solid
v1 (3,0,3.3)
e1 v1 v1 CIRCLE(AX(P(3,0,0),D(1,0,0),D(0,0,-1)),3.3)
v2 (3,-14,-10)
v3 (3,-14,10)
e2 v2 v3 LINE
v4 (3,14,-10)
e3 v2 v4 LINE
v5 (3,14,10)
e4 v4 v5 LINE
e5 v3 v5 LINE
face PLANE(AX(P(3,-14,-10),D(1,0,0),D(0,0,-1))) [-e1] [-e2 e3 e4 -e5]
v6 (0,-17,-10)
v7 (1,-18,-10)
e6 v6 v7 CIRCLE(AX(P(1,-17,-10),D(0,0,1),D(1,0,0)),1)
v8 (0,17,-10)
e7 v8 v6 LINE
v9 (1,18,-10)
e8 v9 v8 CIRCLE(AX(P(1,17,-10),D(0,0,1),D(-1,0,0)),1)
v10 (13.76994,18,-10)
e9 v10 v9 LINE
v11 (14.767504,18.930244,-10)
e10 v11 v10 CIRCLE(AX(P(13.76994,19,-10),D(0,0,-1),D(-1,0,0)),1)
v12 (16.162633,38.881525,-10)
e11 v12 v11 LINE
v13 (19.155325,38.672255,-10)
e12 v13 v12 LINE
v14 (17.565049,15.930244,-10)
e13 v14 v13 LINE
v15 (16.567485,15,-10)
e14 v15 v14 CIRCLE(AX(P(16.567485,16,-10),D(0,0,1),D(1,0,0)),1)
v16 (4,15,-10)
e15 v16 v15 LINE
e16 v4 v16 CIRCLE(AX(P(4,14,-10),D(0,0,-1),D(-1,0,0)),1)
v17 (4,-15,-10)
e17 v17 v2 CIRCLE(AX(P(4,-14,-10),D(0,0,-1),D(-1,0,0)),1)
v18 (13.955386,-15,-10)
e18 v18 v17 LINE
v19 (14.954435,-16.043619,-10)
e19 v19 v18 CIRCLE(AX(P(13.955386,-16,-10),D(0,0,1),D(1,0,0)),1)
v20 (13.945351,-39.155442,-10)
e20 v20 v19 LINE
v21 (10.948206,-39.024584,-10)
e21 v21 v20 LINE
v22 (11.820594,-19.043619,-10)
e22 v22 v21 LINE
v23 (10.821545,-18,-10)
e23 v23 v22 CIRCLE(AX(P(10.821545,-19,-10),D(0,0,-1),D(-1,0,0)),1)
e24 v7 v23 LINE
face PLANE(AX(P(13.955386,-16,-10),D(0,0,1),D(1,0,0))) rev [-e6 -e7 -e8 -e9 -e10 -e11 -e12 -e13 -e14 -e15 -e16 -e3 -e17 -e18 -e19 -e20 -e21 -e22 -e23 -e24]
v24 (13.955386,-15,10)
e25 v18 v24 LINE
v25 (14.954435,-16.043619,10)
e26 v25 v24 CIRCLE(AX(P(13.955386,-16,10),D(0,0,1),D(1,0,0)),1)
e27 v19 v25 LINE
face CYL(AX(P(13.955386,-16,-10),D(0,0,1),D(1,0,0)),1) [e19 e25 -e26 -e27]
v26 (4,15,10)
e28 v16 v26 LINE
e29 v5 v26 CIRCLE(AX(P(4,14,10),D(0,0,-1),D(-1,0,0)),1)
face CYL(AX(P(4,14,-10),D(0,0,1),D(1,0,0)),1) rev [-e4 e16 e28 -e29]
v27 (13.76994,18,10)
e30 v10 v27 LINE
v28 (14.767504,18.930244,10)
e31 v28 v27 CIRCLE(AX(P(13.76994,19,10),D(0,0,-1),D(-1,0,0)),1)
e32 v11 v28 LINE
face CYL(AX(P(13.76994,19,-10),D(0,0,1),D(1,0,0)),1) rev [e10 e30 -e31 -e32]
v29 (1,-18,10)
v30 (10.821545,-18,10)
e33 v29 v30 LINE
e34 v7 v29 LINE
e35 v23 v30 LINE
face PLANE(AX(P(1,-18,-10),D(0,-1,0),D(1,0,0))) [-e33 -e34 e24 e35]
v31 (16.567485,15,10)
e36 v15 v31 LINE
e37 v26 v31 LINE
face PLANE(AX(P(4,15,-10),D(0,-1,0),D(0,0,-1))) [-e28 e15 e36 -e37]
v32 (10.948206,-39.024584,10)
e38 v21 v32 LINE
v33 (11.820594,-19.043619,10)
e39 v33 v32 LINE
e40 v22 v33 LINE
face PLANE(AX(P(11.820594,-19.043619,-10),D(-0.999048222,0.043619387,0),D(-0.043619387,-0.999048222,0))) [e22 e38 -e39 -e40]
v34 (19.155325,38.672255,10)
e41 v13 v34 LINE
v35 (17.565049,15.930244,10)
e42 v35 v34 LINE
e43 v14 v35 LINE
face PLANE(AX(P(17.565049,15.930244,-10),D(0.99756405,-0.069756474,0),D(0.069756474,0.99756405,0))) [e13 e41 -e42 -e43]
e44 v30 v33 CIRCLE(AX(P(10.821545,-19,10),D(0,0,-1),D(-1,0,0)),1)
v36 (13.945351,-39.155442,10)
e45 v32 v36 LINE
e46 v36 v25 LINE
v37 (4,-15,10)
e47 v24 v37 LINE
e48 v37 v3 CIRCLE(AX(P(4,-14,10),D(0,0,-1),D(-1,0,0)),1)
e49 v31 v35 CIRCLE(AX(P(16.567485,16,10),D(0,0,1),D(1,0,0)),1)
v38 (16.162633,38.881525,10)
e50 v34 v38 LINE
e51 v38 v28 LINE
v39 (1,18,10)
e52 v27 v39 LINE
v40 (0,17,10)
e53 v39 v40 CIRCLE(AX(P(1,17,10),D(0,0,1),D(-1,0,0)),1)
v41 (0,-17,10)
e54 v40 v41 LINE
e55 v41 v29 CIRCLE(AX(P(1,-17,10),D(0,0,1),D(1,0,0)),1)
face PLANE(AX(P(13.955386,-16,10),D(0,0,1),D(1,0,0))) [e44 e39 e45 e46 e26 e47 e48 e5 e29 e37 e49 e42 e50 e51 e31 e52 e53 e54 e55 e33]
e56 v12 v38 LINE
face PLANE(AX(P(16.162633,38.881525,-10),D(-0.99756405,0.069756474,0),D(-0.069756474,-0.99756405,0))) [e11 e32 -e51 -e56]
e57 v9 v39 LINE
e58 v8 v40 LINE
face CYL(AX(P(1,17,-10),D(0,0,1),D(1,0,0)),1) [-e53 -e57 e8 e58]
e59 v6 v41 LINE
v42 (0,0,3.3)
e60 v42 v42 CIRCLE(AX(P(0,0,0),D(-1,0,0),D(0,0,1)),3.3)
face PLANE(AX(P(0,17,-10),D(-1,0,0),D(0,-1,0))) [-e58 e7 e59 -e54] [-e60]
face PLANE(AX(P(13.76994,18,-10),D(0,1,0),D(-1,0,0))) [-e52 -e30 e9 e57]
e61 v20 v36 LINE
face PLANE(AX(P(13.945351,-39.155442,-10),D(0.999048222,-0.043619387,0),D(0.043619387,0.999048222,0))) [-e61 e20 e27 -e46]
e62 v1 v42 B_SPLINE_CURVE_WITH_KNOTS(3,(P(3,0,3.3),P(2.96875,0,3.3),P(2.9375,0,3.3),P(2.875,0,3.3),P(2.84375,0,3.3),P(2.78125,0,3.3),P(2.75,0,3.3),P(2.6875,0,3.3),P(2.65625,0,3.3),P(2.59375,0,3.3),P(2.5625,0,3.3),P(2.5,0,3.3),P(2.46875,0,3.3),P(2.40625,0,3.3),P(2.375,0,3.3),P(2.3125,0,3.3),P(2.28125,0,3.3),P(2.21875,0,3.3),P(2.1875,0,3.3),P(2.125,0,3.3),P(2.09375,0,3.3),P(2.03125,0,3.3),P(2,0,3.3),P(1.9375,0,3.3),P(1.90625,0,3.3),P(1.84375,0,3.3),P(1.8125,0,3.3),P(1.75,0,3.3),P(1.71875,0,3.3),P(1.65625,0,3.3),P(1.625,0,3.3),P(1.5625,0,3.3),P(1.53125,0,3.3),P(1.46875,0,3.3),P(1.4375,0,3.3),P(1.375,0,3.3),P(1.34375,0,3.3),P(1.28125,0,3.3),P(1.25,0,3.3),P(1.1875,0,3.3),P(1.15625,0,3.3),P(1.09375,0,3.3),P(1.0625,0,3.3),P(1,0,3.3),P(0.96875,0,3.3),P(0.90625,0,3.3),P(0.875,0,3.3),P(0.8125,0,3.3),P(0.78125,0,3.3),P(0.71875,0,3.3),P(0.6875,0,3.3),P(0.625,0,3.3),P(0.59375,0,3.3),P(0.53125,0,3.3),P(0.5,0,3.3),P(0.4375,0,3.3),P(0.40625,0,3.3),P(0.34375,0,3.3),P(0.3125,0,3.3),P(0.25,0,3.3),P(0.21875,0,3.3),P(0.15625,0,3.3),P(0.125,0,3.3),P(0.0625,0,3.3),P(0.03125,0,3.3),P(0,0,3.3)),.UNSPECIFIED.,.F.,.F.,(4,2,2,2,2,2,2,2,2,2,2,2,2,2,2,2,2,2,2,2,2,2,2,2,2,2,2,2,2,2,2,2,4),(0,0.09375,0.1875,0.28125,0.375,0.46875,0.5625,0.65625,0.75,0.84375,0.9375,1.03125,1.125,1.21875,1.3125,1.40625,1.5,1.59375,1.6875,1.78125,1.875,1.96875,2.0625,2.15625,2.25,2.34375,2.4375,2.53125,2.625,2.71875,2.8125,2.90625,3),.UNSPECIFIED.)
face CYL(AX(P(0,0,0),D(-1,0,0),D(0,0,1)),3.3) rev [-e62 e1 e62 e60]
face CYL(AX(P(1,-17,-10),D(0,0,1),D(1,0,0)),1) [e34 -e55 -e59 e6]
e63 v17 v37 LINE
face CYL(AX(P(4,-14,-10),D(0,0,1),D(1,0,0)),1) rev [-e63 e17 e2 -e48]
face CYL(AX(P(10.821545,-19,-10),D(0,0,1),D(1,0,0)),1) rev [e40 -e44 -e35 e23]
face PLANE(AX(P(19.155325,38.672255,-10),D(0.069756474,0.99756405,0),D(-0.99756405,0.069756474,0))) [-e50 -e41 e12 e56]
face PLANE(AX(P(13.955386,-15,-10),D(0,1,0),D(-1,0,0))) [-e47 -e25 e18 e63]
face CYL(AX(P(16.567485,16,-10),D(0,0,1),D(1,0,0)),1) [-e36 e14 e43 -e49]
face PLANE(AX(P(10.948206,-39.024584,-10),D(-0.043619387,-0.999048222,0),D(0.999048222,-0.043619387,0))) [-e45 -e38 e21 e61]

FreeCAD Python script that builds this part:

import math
import FreeCAD as App
import Part
import Sketcher
from FreeCAD import Vector
Q = App.Units.Quantity

doc = App.newDocument("Part")
body = doc.addObject("PartDesign::Body", "Body")

# Sketch on XY plane
sketch1 = doc.addObject("Sketcher::SketchObject", "Sketch")
body.addObject(sketch1)
sketch1.AttachmentSupport = (doc.XY_Plane, [""])
sketch1.MapMode = "FlatFace"
sketch1.addGeometry([
    Part.LineSegment(Vector(0, 17, 0), Vector(0, -17, 0)),  # 0
    Part.ArcOfCircle(Part.Circle(Vector(1, -17, 0), Vector(0, 0, 1), 1), math.radians(-180), math.radians(-90)),  # 1
    Part.LineSegment(Vector(1, -18, 0), Vector(10.8, -18, 0)),  # 2
    Part.ArcOfCircle(Part.Circle(Vector(10.8, -19, 0), Vector(0, 0, 1), 1), math.radians(-3), math.radians(90)),  # 3
    Part.LineSegment(Vector(11.8, -19, 0), Vector(10.9, -39, 0)),  # 4
    Part.LineSegment(Vector(10.9, -39, 0), Vector(13.9, -39.2, 0)),  # 5
    Part.LineSegment(Vector(13.9, -39.2, 0), Vector(15, -16, 0)),  # 6
    Part.ArcOfCircle(Part.Circle(Vector(14, -16, 0), Vector(0, 0, 1), 1), math.radians(-2), math.radians(90)),  # 7
    Part.LineSegment(Vector(14, -15, 0), Vector(4, -15, 0)),  # 8
    Part.ArcOfCircle(Part.Circle(Vector(4, -14, 0), Vector(0, 0, 1), 1), math.radians(-180), math.radians(-90)),  # 9
    Part.LineSegment(Vector(3, -14, 0), Vector(3, 14, 0)),  # 10
    Part.ArcOfCircle(Part.Circle(Vector(4, 14, 0), Vector(0, 0, 1), 1), math.radians(90), math.radians(180)),  # 11
    Part.LineSegment(Vector(4, 15, 0), Vector(16.6, 15, 0)),  # 12
    Part.ArcOfCircle(Part.Circle(Vector(16.6, 16, 0), Vector(0, 0, 1), 1), math.radians(-90), math.radians(-4)),  # 13
    Part.LineSegment(Vector(17.6, 15.9, 0), Vector(19.2, 38.7, 0)),  # 14
    Part.LineSegment(Vector(19.2, 38.7, 0), Vector(16.2, 38.9, 0)),  # 15
    Part.LineSegment(Vector(16.2, 38.9, 0), Vector(14.8, 18.9, 0)),  # 16
    Part.ArcOfCircle(Part.Circle(Vector(13.8, 19, 0), Vector(0, 0, 1), 1), math.radians(-90), math.radians(-4)),  # 17
    Part.LineSegment(Vector(13.8, 18, 0), Vector(1, 18, 0)),  # 18
    Part.ArcOfCircle(Part.Circle(Vector(1, 17, 0), Vector(0, 0, 1), 1), math.radians(90), math.radians(180)),  # 19
], False)
sketch1.addConstraint([
    Sketcher.Constraint("Tangent", 0, 2, 1, 1),
    Sketcher.Constraint("Tangent", 1, 2, 2, 1),
    Sketcher.Constraint("Tangent", 2, 2, 3, 2),
    Sketcher.Constraint("Tangent", 3, 1, 4, 1),
    Sketcher.Constraint("Coincident", 4, 2, 5, 1),
    Sketcher.Constraint("Coincident", 5, 2, 6, 1),
    Sketcher.Constraint("Tangent", 6, 2, 7, 1),
    Sketcher.Constraint("Tangent", 7, 2, 8, 1),
    Sketcher.Constraint("Tangent", 8, 2, 9, 2),
    Sketcher.Constraint("Tangent", 9, 1, 10, 1),
    Sketcher.Constraint("Tangent", 10, 2, 11, 2),
    Sketcher.Constraint("Tangent", 11, 1, 12, 1),
    Sketcher.Constraint("Tangent", 12, 2, 13, 1),
    Sketcher.Constraint("Tangent", 13, 2, 14, 1),
    Sketcher.Constraint("Coincident", 14, 2, 15, 1),
    Sketcher.Constraint("Coincident", 15, 2, 16, 1),
    Sketcher.Constraint("Tangent", 16, 2, 17, 2),
    Sketcher.Constraint("Tangent", 17, 1, 18, 1),
    Sketcher.Constraint("Tangent", 18, 2, 19, 1),
    Sketcher.Constraint("Tangent", 19, 2, 0, 1),
    Sketcher.Constraint("Vertical", 0),
    Sketcher.Constraint("Horizontal", 2),
    Sketcher.Constraint("Horizontal", 8),
    Sketcher.Constraint("Vertical", 10),
    Sketcher.Constraint("Horizontal", 12),
    Sketcher.Constraint("Horizontal", 18),
    Sketcher.Constraint("Equal", 1, 3),
    Sketcher.Constraint("Equal", 3, 7),
    Sketcher.Constraint("Equal", 7, 9),
    Sketcher.Constraint("Equal", 9, 11),
    Sketcher.Constraint("Equal", 11, 13),
    Sketcher.Constraint("Equal", 13, 17),
    Sketcher.Constraint("Equal", 17, 19),
    Sketcher.Constraint("Symmetric", 0, 2, 19, 2, -1, 1),
    Sketcher.Constraint("Perpendicular", 4, 5),
    Sketcher.Constraint("Perpendicular", 5, 6),
    Sketcher.Constraint("Perpendicular", 14, 15),
    Sketcher.Constraint("Perpendicular", 15, 16),
    Sketcher.Constraint("Equal", 5, 15),
    Sketcher.Constraint("Equal", 4, 16),
    Sketcher.Constraint("Radius", 1, 1.0),
    Sketcher.Constraint("DistanceY", 0, 2, 0, 1, 34.0),
    Sketcher.Constraint("DistanceY", 10, 1, 10, 2, 28.0),
    Sketcher.Constraint("Angle", 14, Q("86 deg")),
    Sketcher.Constraint("Distance", 4, 20.0),
    Sketcher.Constraint("Distance", 5, 3.0),
    Sketcher.Constraint("DistanceY", 7, 3, -1, 1, 16.0),
    Sketcher.Constraint("DistanceX", -1, 1, 9, 3, 4.0),
    Sketcher.Constraint("Angle", 4, Q("-92.5 deg")),
    Sketcher.Constraint("DistanceX", 18, 2, 18, 1, 12.76994),
    Sketcher.Constraint("DistanceX", 7, 3, 13, 3, 2.612099),
])
pad1 = doc.addObject("PartDesign::Pad", "Pad")
body.addObject(pad1)
pad1.Profile = sketch1
pad1.Type = "TwoLengths"
pad1.Length = 10
pad1.Length2 = 10

# Sketch on YZ plane
sketch2 = doc.addObject("Sketcher::SketchObject", "Sketch001")
body.addObject(sketch2)
sketch2.AttachmentSupport = (doc.YZ_Plane, [""])
sketch2.MapMode = "FlatFace"
sketch2.addGeometry(Part.Circle(Vector(0, 0, 0), Vector(0, 0, 1), 3.3), False)
sketch2.addConstraint([
    Sketcher.Constraint("Coincident", 0, 3, -1, 1),
    Sketcher.Constraint("Diameter", 0, 6.6),
])
doc.recompute()
hole = doc.addObject("PartDesign::Hole", "Hole")
body.addObject(hole)
hole.Profile = sketch2
hole.ThreadType = "None"
hole.Diameter = 6.6
hole.DepthType = "ThroughAll"
hole.Reversed = True

doc.recompute()
